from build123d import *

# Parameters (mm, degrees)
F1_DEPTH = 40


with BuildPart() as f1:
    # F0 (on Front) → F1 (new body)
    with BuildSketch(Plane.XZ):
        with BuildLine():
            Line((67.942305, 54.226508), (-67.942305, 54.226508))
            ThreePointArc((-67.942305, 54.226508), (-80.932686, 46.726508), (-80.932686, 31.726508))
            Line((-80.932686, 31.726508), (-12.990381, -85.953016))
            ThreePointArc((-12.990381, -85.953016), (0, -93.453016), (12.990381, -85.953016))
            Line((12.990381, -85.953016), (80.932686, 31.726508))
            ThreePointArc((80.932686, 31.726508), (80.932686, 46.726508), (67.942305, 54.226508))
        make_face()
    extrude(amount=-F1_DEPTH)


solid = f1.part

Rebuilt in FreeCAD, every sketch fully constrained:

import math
import FreeCAD as App
import Part
import Sketcher
from FreeCAD import Vector
Q = App.Units.Quantity

doc = App.newDocument("Part")
body = doc.addObject("PartDesign::Body", "Body")

# Sketch on XZ plane
sketch1 = doc.addObject("Sketcher::SketchObject", "Sketch")
body.addObject(sketch1)
sketch1.AttachmentSupport = (doc.XZ_Plane, [""])
sketch1.MapMode = "FlatFace"
sketch1.addGeometry(Part.LineSegment(Vector(67.942305, 54.226508, 0), Vector(-67.942305, 54.226508, 0)), False)
sketch1.addGeometry(Part.ArcOfCircle(Part.Circle(Vector(-67.942305, 39.226508, 0), Vector(0, 0, 1), 15), math.radians(90), math.radians(210)), False)
sketch1.addGeometry(Part.LineSegment(Vector(-80.932686, 31.726508, 0), Vector(-12.990381, -85.953016, 0)), False)
sketch1.addGeometry(Part.ArcOfCircle(Part.Circle(Vector(0, -78.453016, 0), Vector(0, 0, 1), 15), math.radians(-150), math.radians(-30)), False)
sketch1.addGeometry(Part.LineSegment(Vector(12.990381, -85.953016, 0), Vector(80.932686, 31.726508, 0)), False)
sketch1.addGeometry(Part.ArcOfCircle(Part.Circle(Vector(67.942305, 39.226508, 0), Vector(0, 0, 1), 15), math.radians(-30), math.radians(90)), False)
sketch1.addConstraint(Sketcher.Constraint("Tangent", 0, 2, 1, 1))
sketch1.addConstraint(Sketcher.Constraint("Tangent", 1, 2, 2, 1))
sketch1.addConstraint(Sketcher.Constraint("Tangent", 2, 2, 3, 1))
sketch1.addConstraint(Sketcher.Constraint("Tangent", 3, 2, 4, 1))
sketch1.addConstraint(Sketcher.Constraint("Tangent", 4, 2, 5, 1))
sketch1.addConstraint(Sketcher.Constraint("Tangent", 5, 2, 0, 1))
sketch1.addConstraint(Sketcher.Constraint("Horizontal", 0))
sketch1.addConstraint(Sketcher.Constraint("Equal", 1, 3))
sketch1.addConstraint(Sketcher.Constraint("Equal", 3, 5))
sketch1.addConstraint(Sketcher.Constraint("Symmetric", 2, 2, 3, 2, -2))
sketch1.addConstraint(Sketcher.Constraint("Radius", 1, Q("15 mm")))
sketch1.addConstraint(Sketcher.Constraint("Angle", 2, Q("-60 deg")))
sketch1.addConstraint(Sketcher.Constraint("DistanceX", 0, 2, 0, 1, Q("135.88461 mm")))
sketch1.addConstraint(Sketcher.Constraint("DistanceY", -1, 1, 1, 3, Q("39.226508 mm")))
pad1 = doc.addObject("PartDesign::Pad", "Pad")
body.addObject(pad1)
pad1.Profile = sketch1
pad1.Length = 40
pad1.Reversed = True

doc.recompute()
